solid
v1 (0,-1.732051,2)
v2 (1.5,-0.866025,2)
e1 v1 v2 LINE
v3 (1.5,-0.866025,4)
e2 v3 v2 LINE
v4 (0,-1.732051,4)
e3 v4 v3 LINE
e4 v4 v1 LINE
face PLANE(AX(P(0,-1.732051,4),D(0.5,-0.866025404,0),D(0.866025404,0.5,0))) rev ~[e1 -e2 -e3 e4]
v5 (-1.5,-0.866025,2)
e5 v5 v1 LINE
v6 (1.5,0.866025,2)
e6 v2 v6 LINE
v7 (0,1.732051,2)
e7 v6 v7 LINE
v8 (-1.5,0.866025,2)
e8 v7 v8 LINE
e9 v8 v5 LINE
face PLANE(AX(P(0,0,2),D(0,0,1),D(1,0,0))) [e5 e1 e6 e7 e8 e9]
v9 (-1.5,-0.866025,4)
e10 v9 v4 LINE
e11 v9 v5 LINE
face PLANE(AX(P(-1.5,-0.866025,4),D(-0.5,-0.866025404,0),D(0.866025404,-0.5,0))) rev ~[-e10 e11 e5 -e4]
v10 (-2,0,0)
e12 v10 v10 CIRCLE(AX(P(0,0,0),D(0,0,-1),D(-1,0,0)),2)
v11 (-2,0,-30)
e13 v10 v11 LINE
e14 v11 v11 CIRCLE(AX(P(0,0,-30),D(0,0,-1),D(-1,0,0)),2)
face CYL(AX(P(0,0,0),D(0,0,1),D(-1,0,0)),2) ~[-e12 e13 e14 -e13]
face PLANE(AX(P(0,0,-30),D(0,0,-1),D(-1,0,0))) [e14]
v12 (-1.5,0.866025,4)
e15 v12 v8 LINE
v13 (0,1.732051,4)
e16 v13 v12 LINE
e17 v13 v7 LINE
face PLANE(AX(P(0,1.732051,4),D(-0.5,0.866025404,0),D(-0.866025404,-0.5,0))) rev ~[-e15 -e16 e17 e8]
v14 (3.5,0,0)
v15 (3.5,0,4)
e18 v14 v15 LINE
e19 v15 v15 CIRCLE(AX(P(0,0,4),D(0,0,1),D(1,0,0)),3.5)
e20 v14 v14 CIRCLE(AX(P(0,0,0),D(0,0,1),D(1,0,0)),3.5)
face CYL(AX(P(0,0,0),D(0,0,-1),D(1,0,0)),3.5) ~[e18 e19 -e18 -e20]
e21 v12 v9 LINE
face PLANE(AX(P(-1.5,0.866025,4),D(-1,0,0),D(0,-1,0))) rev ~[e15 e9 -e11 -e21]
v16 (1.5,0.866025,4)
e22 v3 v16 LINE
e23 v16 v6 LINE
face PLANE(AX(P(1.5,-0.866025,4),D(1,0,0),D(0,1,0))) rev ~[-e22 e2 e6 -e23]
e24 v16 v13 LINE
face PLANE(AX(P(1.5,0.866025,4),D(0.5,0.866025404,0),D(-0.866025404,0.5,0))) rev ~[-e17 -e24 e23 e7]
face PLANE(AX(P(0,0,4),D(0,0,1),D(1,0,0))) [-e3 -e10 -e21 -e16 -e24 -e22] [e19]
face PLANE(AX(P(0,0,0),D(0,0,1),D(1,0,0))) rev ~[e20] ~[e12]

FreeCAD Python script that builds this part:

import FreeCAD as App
import Part
import Sketcher

V = App.Vector
Q = App.Units.Quantity

doc = App.newDocument("Part")
body = doc.addObject("PartDesign::Body", "Body")

# Sketch on XY plane
sketch1 = body.newObject("Sketcher::SketchObject", "Sketch")
sketch1.AttachmentSupport = (doc.getObject("XY_Plane"), [""])
sketch1.MapMode = "FlatFace"
sketch1.addGeometry(Part.Circle(V(0, 0, 0), V(0, 0, 1), 3.5), False)
sketch1.addConstraint(Sketcher.Constraint("Coincident", 0, 3, -1, 1))
sketch1.addConstraint(Sketcher.Constraint("Diameter", 0, Q("7 mm")))
pad1 = body.newObject("PartDesign::Pad", "Pad")
pad1.Profile = sketch1
pad1.Length = 4

# Sketch on XY plane
sketch2 = body.newObject("Sketcher::SketchObject", "Sketch001")
sketch2.AttachmentSupport = (doc.getObject("XY_Plane"), [""])
sketch2.MapMode = "FlatFace"
sketch2.AttachmentOffset = App.Placement(V(0, 0, 4), App.Rotation())
sketch2.addGeometry(Part.LineSegment(V(0, -1.732051, 0), V(1.5, -0.866025, 0)), False)
sketch2.addGeometry(Part.LineSegment(V(1.5, -0.866025, 0), V(1.5, 0.866025, 0)), False)
sketch2.addGeometry(Part.LineSegment(V(1.5, 0.866025, 0), V(0, 1.732051, 0)), False)
sketch2.addGeometry(Part.LineSegment(V(0, 1.732051, 0), V(-1.5, 0.866025, 0)), False)
sketch2.addGeometry(Part.LineSegment(V(-1.5, 0.866025, 0), V(-1.5, -0.866025, 0)), False)
sketch2.addGeometry(Part.LineSegment(V(-1.5, -0.866025, 0), V(0, -1.732051, 0)), False)
sketch2.addConstraint(Sketcher.Constraint("Coincident", 0, 2, 1, 1))
sketch2.addConstraint(Sketcher.Constraint("Coincident", 1, 2, 2, 1))
sketch2.addConstraint(Sketcher.Constraint("Coincident", 2, 2, 3, 1))
sketch2.addConstraint(Sketcher.Constraint("Coincident", 3, 2, 4, 1))
sketch2.addConstraint(Sketcher.Constraint("Coincident", 4, 2, 5, 1))
sketch2.addConstraint(Sketcher.Constraint("Coincident", 5, 2, 0, 1))
sketch2.addConstraint(Sketcher.Constraint("Vertical", 1))
sketch2.addConstraint(Sketcher.Constraint("Vertical", 4))
sketch2.addConstraint(Sketcher.Constraint("Symmetric", 0, 2, 3, 2, -1, 1))
sketch2.addConstraint(Sketcher.Constraint("Symmetric", 2, 2, 5, 2, -1, 1))
sketch2.addConstraint(Sketcher.Constraint("PointOnObject", 2, 2, -2))
sketch2.addConstraint(Sketcher.Constraint("Parallel", 2, 5))
sketch2.addConstraint(Sketcher.Constraint("Horizontal", 1, 2, 3, 2))
sketch2.addConstraint(Sketcher.Constraint("Angle", 0, Q("30 deg")))
sketch2.addConstraint(Sketcher.Constraint("DistanceX", 3, 2, 1, 2, Q("3 mm")))
sketch2.addConstraint(Sketcher.Constraint("DistanceY", 1, 1, 1, 2, Q("1.732051 mm")))
pocket1 = body.newObject("PartDesign::Pocket", "Pocket")
pocket1.Profile = sketch2
pocket1.Length = 2

# Sketch on XY plane
sketch3 = body.newObject("Sketcher::SketchObject", "Sketch002")
sketch3.AttachmentSupport = (doc.getObject("XY_Plane"), [""])
sketch3.MapMode = "FlatFace"
sketch3.addGeometry(Part.Circle(V(0, 0, 0), V(0, 0, 1), 2), False)
sketch3.addConstraint(Sketcher.Constraint("Coincident", 0, 3, -1, 1))
sketch3.addConstraint(Sketcher.Constraint("Diameter", 0, Q("4 mm")))
pad2 = body.newObject("PartDesign::Pad", "Pad001")
pad2.Profile = sketch3
pad2.Length = 30
pad2.Reversed = True

doc.recompute()
